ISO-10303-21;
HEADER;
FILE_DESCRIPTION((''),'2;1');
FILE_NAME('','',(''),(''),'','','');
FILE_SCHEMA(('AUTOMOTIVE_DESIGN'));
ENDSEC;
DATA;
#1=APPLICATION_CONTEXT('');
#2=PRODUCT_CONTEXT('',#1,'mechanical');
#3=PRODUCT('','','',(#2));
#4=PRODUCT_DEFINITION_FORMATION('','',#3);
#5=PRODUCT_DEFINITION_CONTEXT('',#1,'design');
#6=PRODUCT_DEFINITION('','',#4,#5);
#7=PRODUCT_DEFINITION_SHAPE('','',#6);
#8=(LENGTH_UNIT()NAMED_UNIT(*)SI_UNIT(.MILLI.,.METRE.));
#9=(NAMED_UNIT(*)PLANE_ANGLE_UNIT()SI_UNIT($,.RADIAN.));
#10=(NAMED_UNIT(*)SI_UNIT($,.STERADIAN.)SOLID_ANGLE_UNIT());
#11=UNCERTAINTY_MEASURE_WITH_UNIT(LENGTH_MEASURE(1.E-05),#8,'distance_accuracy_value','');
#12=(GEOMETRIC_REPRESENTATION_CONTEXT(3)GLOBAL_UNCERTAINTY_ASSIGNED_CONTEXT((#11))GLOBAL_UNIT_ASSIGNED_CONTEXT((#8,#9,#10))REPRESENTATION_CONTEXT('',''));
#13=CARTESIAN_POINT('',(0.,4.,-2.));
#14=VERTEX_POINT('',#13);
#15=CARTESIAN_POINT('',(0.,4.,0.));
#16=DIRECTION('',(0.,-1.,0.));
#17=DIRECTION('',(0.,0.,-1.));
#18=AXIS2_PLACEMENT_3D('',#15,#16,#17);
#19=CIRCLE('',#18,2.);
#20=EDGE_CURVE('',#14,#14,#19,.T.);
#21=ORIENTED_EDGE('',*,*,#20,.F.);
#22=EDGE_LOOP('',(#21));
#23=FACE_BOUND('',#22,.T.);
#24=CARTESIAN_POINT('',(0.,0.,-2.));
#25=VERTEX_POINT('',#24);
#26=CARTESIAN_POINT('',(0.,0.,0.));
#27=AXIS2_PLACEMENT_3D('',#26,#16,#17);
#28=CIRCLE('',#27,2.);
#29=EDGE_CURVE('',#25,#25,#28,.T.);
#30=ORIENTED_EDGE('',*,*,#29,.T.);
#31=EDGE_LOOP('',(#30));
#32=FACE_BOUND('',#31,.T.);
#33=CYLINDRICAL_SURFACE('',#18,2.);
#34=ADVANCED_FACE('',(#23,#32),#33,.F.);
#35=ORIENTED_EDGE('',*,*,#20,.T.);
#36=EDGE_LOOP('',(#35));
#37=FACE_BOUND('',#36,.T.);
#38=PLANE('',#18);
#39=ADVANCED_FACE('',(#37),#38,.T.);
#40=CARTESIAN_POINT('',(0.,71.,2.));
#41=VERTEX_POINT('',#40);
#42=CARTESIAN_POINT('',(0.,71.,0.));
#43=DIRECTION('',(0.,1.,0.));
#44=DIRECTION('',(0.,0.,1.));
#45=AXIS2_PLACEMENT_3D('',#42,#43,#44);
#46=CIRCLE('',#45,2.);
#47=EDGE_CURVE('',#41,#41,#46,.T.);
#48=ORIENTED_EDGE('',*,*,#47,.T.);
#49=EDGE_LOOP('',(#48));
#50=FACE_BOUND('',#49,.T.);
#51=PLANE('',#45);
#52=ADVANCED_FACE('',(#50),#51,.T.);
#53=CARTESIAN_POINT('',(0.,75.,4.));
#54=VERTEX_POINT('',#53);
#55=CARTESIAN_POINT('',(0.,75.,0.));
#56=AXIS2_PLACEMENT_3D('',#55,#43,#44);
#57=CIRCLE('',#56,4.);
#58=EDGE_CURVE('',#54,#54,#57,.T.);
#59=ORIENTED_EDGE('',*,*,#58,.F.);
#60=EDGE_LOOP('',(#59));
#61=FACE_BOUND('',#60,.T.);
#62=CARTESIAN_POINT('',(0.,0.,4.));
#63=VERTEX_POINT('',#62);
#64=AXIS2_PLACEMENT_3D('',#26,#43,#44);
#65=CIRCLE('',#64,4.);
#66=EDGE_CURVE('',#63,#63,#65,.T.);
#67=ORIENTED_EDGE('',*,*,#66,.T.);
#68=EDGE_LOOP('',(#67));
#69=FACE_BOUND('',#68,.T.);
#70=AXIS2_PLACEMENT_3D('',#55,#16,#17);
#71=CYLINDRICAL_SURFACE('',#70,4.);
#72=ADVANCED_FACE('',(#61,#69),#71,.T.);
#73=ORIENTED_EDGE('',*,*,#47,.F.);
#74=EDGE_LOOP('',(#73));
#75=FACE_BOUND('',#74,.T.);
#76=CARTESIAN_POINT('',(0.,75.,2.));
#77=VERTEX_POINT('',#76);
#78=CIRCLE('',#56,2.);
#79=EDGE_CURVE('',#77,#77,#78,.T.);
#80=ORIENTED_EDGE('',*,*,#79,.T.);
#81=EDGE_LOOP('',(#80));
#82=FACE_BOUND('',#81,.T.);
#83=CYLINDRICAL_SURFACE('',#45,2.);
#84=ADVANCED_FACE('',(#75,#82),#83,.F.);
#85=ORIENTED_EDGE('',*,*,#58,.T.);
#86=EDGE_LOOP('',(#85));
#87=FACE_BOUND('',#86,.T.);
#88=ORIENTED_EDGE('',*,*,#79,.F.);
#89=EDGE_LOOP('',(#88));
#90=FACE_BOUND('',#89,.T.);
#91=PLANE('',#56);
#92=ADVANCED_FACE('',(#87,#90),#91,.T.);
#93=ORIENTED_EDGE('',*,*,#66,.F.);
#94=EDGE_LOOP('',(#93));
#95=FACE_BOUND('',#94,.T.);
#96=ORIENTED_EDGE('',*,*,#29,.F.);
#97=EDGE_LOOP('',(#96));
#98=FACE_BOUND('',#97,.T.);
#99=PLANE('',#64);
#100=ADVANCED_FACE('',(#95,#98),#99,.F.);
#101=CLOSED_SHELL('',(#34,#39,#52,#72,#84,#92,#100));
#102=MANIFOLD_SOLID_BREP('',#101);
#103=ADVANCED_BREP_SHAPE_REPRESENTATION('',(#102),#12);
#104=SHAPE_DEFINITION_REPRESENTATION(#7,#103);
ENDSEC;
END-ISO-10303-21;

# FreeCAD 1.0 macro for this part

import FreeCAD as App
import Part
import Sketcher

V = App.Vector

doc = App.newDocument("Part")
body = doc.addObject("PartDesign::Body", "Body")

sketch1 = body.newObject("Sketcher::SketchObject", "Sketch")
sketch1.AttachmentSupport = (doc.getObject("XZ_Plane"), [""])
sketch1.MapMode = "FlatFace"
sketch1.addGeometry(Part.Circle(V(0, 0, 0), V(0, 0, 1), 4), False)
sketch1.addConstraint([
    Sketcher.Constraint("Coincident", 0, 3, -1, 1),
    Sketcher.Constraint("Diameter", 0, 8.0),
])
pad1 = body.newObject("PartDesign::Pad", "Pad")
pad1.Profile = sketch1
pad1.Length = 75
pad1.Reversed = True

sketch2 = body.newObject("Sketcher::SketchObject", "Sketch001")
sketch2.AttachmentSupport = (doc.getObject("XZ_Plane"), [""])
sketch2.MapMode = "FlatFace"
sketch2.AttachmentOffset = App.Placement(V(0, 0, -75), App.Rotation())
sketch2.addGeometry(Part.Circle(V(0, 0, 0), V(0, 0, 1), 2), False)
sketch2.addConstraint([
    Sketcher.Constraint("Coincident", 0, 3, -1, 1),
    Sketcher.Constraint("Diameter", 0, 4.0),
])
pocket1 = body.newObject("PartDesign::Pocket", "Pocket")
pocket1.Profile = sketch2
pocket1.Length = 4
pocket1.Reversed = True

sketch3 = body.newObject("Sketcher::SketchObject", "Sketch002")
sketch3.AttachmentSupport = (doc.getObject("XZ_Plane"), [""])
sketch3.MapMode = "FlatFace"
sketch3.addGeometry(Part.Circle(V(0, 0, 0), V(0, 0, 1), 2), False)
sketch3.addConstraint([
    Sketcher.Constraint("Coincident", 0, 3, -1, 1),
    Sketcher.Constraint("Diameter", 0, 4.0),
])
pocket2 = body.newObject("PartDesign::Pocket", "Pocket001")
pocket2.Profile = sketch3
pocket2.Length = 4

doc.recompute()
